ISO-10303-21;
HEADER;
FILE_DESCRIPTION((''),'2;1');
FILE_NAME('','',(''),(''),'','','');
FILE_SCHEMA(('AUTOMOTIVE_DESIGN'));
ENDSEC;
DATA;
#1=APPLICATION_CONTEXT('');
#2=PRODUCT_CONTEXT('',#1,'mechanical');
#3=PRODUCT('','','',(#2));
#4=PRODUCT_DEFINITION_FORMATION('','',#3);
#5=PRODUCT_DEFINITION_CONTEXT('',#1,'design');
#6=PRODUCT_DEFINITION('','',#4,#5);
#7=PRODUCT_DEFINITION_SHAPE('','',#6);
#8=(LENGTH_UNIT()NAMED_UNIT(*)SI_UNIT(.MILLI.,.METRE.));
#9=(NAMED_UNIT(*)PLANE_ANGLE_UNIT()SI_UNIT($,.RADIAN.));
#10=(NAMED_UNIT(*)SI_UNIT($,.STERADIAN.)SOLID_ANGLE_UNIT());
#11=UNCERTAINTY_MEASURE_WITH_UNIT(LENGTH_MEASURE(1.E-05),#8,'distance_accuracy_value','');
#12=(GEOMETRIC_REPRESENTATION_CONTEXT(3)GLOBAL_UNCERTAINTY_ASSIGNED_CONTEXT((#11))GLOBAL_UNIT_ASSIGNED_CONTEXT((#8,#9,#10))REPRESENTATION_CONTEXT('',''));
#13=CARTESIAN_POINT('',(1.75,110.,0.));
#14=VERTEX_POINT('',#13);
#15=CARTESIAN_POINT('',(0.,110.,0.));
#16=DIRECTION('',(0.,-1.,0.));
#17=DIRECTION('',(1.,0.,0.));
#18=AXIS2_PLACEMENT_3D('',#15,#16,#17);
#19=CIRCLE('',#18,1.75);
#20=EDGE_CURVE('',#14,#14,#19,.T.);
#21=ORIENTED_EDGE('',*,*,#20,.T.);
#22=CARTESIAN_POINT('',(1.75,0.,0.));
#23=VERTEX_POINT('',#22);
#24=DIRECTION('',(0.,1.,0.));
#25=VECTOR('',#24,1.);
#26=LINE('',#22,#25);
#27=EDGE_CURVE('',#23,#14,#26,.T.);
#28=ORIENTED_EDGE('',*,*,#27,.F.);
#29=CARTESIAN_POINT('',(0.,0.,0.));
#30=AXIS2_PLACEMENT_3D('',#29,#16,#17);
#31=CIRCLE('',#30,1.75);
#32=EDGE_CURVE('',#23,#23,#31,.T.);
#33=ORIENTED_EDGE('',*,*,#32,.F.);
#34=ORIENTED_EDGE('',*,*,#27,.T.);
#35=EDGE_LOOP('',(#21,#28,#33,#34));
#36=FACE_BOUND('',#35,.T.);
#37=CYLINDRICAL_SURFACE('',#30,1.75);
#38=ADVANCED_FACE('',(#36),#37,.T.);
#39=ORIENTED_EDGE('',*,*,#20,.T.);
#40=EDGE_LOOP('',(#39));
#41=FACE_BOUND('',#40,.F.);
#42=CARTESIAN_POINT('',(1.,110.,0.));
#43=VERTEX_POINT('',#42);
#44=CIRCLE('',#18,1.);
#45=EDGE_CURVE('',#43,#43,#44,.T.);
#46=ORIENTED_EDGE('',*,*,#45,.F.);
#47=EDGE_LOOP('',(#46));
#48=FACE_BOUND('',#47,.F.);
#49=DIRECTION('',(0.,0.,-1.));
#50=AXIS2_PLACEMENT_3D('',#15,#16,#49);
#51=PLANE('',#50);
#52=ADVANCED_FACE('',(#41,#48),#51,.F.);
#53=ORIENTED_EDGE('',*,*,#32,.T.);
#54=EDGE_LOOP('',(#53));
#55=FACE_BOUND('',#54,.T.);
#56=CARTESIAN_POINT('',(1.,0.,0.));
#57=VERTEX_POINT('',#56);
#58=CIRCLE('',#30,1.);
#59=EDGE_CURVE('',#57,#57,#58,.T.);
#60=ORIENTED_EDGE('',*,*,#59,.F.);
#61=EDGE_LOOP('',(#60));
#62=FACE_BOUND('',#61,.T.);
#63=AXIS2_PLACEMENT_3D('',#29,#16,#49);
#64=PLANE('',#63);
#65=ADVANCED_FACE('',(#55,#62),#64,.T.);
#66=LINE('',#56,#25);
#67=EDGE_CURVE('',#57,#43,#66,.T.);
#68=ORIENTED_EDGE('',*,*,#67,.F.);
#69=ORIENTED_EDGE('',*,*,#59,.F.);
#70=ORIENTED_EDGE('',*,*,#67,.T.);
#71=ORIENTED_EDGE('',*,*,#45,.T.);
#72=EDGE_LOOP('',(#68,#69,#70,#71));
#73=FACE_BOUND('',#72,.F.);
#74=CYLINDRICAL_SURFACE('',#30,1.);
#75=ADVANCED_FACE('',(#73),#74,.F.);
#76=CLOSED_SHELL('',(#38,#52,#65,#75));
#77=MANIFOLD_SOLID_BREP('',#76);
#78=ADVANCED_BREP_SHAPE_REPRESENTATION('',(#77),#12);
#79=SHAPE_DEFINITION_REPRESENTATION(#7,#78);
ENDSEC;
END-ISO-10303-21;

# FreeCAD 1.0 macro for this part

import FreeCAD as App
import Part
import Sketcher
from FreeCAD import Vector

doc = App.newDocument("Part")
params = doc.addObject("Spreadsheet::Sheet", "Params")
for row, (alias, value) in enumerate([
    ("sketch1_diameter", "2 mm"),
    ("sketch1_diameter2", "3.5 mm"),
    ("pad1_length", "110 mm"),
], start=1):
    params.set(f"A{row}", alias)
    params.set(f"B{row}", "=" + value)
    params.setAlias(f"B{row}", alias)

body = doc.addObject("PartDesign::Body", "Body")

# Sketch on XZ plane
sketch1 = body.newObject("Sketcher::SketchObject", "Sketch")
sketch1.AttachmentSupport = (doc.getObject("XZ_Plane"), [""])
sketch1.MapMode = "FlatFace"
sketch1.addGeometry(Part.Circle(Vector(0, 0, 0), Vector(0, 0, 1), 1.8), False)
sketch1.addGeometry(Part.Circle(Vector(0, 0, 0), Vector(0, 0, 1), 1), False)
sketch1.addConstraint(Sketcher.Constraint("Coincident", 0, 3, -1, 1))
sketch1.addConstraint(Sketcher.Constraint("Coincident", 1, 3, -1, 1))
sketch1.addConstraint(Sketcher.Constraint("Diameter", 1, 2.0))
sketch1.addConstraint(Sketcher.Constraint("Diameter", 0, 3.5))
sketch1.setExpression("Constraints[2]", "Params.sketch1_diameter")
sketch1.setExpression("Constraints[3]", "Params.sketch1_diameter2")
pad1 = body.newObject("PartDesign::Pad", "Pad")
pad1.Profile = sketch1
pad1.setExpression("Length", "Params.pad1_length")
pad1.Reversed = True

doc.recompute()
